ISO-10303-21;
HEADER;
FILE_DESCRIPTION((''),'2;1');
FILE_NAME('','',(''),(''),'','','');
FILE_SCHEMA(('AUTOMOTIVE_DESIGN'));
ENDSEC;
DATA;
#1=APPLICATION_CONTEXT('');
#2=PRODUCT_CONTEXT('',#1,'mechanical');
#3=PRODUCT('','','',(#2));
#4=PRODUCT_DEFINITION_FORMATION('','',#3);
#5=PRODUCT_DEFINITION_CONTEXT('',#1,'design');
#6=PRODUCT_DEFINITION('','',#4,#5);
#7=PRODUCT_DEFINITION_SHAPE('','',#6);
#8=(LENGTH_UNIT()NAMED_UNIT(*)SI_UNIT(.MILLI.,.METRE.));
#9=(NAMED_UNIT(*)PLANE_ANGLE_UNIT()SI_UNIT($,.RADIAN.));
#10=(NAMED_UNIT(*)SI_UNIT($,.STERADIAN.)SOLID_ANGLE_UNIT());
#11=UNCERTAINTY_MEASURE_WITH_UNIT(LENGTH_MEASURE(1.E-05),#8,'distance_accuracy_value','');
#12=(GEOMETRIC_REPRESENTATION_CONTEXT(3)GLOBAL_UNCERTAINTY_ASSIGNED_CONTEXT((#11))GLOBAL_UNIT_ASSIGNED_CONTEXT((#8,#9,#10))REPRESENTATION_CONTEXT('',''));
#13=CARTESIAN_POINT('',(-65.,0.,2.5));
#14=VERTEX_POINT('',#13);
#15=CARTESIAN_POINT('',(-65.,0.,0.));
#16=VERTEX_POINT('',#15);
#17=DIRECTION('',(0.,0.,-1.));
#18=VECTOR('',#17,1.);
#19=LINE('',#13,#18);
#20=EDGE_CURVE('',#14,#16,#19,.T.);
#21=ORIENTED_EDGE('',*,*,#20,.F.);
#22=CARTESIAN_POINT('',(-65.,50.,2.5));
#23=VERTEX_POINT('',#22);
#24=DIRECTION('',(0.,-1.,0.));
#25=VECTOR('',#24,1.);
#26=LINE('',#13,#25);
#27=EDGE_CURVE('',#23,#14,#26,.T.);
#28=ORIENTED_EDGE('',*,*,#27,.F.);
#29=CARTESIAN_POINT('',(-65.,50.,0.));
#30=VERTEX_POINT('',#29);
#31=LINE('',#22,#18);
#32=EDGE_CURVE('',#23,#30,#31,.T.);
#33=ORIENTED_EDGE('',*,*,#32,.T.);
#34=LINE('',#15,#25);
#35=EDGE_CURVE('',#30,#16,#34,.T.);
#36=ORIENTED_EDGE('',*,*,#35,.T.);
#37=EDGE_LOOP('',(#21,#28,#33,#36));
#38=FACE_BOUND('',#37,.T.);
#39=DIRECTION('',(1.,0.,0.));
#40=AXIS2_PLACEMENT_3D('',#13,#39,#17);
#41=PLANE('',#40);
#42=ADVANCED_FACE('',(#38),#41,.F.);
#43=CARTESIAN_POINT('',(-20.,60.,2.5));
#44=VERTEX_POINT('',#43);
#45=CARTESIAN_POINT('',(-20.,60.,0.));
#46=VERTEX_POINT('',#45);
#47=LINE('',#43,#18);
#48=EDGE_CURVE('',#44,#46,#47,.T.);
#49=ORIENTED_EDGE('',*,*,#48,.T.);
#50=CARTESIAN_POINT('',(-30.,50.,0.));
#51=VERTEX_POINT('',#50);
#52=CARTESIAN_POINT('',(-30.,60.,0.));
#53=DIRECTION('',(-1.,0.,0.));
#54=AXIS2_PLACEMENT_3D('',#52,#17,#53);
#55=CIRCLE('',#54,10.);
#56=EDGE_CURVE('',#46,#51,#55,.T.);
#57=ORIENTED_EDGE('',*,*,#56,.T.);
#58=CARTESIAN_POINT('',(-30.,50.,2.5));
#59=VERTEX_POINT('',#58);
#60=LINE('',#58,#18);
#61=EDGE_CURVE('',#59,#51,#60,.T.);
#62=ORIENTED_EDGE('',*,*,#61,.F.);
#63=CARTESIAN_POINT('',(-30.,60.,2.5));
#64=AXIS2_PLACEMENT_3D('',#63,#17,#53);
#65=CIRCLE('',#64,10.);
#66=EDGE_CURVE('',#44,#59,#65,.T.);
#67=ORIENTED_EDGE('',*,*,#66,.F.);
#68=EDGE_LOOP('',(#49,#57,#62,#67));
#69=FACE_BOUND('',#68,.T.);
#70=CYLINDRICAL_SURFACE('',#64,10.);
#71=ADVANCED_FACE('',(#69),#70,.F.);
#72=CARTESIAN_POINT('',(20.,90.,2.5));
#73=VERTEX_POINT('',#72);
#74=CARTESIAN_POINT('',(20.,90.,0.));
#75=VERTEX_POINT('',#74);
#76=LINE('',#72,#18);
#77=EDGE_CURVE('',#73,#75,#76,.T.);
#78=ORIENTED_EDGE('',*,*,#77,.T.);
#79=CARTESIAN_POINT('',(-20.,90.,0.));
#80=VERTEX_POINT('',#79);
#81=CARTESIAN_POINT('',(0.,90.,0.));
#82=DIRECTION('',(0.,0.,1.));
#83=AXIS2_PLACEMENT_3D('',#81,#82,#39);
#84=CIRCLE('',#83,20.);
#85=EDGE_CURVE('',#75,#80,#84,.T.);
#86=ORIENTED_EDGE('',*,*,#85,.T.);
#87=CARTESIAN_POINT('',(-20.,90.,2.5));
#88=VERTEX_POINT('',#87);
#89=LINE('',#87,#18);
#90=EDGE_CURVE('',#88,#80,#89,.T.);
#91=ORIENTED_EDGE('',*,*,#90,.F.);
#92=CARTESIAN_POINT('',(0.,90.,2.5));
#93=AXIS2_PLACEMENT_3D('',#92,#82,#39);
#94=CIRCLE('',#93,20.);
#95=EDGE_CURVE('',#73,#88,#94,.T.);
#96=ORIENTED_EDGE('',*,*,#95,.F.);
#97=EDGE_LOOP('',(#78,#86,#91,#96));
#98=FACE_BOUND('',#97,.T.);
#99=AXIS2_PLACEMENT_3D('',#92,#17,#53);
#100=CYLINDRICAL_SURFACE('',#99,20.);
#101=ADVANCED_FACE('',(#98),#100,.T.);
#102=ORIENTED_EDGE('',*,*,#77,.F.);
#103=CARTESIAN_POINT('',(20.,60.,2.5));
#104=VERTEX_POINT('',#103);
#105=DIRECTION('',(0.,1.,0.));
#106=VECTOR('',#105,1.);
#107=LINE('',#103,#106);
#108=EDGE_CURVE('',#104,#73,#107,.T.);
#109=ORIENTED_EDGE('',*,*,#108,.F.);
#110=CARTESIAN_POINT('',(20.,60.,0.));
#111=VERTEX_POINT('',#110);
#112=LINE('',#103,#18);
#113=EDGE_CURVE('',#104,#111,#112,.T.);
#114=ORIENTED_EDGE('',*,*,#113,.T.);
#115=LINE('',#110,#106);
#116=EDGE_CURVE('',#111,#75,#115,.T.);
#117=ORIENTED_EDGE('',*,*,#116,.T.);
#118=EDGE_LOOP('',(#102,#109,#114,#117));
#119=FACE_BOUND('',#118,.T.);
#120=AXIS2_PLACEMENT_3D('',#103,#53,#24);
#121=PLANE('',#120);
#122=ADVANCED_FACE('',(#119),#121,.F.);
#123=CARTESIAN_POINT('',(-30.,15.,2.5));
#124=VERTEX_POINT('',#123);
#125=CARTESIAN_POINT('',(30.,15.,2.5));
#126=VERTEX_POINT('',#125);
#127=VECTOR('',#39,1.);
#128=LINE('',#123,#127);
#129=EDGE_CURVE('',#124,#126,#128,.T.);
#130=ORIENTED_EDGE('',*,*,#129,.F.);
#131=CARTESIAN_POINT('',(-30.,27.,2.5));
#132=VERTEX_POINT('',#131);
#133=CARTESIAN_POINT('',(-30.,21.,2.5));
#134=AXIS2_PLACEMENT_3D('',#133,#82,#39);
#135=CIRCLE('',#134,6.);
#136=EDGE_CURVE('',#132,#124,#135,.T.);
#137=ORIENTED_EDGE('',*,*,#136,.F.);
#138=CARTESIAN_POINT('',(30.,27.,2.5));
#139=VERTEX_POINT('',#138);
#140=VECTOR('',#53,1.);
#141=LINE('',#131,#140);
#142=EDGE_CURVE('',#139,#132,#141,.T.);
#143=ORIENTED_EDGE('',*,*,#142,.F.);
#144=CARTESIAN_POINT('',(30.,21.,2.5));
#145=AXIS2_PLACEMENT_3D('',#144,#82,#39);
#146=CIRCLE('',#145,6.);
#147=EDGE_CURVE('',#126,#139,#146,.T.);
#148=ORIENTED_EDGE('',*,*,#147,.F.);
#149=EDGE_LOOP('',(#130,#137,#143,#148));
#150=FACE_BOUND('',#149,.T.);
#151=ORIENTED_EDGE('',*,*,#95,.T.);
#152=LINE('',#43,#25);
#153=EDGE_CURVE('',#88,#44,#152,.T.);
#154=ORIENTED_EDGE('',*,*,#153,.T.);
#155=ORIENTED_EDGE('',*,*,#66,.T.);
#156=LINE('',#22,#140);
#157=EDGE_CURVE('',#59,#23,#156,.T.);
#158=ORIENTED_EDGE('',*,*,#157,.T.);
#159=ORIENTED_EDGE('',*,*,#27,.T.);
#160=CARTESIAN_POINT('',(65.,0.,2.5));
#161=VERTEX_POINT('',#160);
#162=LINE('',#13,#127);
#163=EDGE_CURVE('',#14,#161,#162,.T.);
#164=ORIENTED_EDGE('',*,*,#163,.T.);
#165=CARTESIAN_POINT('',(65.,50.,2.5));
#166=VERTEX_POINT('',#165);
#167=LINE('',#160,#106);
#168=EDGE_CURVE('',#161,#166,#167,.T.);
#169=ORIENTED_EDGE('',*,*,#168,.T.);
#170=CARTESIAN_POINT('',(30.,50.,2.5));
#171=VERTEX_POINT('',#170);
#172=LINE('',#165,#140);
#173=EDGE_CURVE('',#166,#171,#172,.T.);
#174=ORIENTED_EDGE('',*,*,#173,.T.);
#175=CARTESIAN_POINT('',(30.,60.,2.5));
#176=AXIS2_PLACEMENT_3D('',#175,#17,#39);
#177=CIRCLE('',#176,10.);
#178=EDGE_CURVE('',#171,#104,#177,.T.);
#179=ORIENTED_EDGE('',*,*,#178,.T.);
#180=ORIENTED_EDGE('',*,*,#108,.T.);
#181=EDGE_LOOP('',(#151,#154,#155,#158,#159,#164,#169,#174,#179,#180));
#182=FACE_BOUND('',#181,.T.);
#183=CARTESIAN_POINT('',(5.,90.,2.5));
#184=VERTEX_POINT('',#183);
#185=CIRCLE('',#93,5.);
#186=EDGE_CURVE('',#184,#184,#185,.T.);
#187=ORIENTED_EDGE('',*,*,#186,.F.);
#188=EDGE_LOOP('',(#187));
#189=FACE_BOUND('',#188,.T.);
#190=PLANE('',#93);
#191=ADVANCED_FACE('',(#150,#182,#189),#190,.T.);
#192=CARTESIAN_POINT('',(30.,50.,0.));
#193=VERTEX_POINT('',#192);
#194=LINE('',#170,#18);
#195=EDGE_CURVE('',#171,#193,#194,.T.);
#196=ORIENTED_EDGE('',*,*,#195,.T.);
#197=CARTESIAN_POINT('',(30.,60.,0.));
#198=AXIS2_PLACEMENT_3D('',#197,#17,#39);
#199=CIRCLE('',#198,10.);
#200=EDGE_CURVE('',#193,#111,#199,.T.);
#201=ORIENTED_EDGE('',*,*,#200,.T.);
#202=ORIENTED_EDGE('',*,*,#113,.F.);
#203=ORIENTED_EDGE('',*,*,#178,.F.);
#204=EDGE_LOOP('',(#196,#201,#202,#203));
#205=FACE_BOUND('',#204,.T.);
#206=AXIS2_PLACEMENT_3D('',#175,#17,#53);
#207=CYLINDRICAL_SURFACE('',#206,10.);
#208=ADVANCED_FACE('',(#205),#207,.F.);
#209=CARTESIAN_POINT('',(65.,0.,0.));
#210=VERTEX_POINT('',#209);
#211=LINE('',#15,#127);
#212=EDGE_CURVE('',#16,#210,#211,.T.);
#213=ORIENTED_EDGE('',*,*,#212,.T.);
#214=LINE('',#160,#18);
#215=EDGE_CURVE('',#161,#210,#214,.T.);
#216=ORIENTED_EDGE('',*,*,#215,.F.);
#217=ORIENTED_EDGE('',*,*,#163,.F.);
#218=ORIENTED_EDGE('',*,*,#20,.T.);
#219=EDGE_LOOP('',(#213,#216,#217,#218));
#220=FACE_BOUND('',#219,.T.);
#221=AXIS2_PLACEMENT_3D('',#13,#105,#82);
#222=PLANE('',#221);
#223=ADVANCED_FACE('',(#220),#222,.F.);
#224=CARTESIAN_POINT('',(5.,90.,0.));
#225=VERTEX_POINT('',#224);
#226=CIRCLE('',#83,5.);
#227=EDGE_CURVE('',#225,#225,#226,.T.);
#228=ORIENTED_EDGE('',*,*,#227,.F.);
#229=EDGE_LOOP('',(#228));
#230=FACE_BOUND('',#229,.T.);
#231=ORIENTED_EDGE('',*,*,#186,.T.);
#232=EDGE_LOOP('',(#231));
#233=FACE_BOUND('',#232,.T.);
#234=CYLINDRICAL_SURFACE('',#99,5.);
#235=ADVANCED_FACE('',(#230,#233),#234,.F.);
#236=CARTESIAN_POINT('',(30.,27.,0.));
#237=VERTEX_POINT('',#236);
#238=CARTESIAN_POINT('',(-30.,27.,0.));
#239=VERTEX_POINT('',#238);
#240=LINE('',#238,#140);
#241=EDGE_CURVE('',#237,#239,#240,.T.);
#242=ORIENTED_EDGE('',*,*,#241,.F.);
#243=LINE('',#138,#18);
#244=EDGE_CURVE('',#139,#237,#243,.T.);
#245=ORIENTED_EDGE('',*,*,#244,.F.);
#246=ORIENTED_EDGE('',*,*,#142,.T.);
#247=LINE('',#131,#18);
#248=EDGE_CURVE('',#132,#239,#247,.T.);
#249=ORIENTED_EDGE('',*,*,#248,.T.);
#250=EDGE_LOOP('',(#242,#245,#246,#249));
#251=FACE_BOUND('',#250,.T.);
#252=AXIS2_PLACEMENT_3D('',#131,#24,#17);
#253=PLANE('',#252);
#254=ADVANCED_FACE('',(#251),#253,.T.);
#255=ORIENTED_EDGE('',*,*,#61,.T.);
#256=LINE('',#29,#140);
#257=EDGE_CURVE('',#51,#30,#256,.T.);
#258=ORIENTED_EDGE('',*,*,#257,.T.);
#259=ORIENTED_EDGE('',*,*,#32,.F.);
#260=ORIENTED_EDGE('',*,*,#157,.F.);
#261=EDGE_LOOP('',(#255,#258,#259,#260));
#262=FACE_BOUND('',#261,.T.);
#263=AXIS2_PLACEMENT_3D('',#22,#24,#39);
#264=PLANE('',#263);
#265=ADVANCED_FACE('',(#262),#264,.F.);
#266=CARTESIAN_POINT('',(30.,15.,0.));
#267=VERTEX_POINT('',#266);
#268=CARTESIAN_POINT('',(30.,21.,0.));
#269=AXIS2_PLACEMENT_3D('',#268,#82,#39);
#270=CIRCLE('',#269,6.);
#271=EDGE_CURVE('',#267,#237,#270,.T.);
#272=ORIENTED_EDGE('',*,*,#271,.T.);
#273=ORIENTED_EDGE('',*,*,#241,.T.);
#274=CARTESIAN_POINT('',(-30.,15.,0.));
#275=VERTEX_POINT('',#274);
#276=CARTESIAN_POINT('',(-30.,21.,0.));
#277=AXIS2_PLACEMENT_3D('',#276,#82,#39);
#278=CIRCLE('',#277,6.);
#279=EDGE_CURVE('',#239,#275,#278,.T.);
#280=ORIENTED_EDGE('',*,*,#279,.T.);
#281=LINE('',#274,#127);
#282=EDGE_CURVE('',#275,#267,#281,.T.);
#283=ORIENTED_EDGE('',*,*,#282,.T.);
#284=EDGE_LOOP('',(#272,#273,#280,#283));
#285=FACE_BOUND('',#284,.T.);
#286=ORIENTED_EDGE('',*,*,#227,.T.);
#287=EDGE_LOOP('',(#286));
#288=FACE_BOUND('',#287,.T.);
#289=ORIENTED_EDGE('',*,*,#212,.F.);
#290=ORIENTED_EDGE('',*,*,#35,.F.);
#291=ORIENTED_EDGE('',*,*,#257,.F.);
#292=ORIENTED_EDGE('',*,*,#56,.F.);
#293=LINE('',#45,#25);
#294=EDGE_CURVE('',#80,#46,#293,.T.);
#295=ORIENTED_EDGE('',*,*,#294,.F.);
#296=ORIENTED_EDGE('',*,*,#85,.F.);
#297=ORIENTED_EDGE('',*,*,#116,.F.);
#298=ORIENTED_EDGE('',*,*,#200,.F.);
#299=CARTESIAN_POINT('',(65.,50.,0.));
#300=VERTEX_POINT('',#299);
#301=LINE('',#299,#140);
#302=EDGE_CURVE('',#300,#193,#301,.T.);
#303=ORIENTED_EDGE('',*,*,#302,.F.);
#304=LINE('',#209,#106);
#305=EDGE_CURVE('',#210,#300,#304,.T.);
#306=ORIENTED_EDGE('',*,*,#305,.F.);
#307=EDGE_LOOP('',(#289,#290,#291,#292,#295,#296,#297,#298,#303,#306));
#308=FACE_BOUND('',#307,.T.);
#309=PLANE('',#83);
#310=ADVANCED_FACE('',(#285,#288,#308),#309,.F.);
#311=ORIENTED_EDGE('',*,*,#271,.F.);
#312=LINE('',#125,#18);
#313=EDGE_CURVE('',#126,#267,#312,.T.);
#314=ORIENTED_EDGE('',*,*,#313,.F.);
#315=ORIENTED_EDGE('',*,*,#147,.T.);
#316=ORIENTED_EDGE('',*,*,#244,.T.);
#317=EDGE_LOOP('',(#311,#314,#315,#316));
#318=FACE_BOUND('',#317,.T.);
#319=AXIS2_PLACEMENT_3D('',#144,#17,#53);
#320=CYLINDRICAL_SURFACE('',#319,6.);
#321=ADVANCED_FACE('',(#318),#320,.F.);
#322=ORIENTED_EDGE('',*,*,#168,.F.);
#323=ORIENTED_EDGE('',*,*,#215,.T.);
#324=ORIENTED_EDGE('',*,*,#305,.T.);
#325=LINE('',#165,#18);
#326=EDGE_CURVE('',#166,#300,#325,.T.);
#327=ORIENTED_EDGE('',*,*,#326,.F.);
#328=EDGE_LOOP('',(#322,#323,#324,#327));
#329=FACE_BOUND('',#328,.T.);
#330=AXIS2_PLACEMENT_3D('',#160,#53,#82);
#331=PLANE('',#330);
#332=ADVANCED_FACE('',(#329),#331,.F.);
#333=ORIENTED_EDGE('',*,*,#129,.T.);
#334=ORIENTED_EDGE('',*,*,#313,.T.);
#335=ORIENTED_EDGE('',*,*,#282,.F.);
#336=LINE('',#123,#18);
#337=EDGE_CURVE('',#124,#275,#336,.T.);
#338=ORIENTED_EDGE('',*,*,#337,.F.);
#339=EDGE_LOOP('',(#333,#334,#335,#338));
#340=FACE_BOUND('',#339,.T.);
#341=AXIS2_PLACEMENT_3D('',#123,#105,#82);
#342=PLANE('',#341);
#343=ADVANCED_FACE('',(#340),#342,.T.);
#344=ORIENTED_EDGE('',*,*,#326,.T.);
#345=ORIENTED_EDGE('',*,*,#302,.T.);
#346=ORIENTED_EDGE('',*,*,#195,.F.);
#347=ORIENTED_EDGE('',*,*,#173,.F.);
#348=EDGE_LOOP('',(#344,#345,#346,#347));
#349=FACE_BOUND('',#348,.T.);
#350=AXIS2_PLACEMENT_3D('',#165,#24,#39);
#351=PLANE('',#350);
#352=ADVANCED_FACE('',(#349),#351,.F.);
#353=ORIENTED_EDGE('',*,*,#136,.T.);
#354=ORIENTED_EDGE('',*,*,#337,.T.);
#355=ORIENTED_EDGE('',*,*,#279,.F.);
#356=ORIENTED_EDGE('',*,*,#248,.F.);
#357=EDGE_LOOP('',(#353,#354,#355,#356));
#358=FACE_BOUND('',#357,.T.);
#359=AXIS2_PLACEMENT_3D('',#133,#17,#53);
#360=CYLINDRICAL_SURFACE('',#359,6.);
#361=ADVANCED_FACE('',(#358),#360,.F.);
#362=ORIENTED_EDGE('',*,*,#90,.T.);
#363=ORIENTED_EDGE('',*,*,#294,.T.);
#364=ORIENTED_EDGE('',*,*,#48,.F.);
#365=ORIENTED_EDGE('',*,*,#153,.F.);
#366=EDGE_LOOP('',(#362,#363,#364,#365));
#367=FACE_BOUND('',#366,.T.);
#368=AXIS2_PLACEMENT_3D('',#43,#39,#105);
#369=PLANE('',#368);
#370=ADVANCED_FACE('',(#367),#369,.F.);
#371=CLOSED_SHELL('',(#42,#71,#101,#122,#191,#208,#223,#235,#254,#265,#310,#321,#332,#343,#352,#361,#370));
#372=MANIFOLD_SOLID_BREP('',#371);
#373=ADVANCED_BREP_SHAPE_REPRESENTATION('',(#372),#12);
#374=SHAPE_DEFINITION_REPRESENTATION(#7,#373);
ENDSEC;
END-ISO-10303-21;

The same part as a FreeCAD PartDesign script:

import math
import FreeCAD as App
import Part
import Sketcher
Q = App.Units.Quantity

doc = App.newDocument("Part")
body = doc.addObject("PartDesign::Body", "Body")

# Sketch on XY plane
sketch1 = body.newObject("Sketcher::SketchObject", "Sketch")
sketch1.AttachmentSupport = (doc.getObject("XY_Plane"), [""])
sketch1.MapMode = "FlatFace"
sketch1.addGeometry([
    Part.LineSegment(App.Vector(-65, 0, 0), App.Vector(65, 0, 0)),  # 0
    Part.LineSegment(App.Vector(65, 0, 0), App.Vector(65, 50, 0)),  # 1
    Part.LineSegment(App.Vector(65, 50, 0), App.Vector(30, 50, 0)),  # 2
    Part.ArcOfCircle(Part.Circle(App.Vector(30, 60, 0), App.Vector(0, 0, 1), 10), math.radians(180), math.radians(270)),  # 3
    Part.LineSegment(App.Vector(20, 60, 0), App.Vector(20, 90, 0)),  # 4
    Part.ArcOfCircle(Part.Circle(App.Vector(0, 90, 0), App.Vector(0, 0, 1), 20), math.radians(0), math.radians(180)),  # 5
    Part.LineSegment(App.Vector(-20, 90, 0), App.Vector(-20, 60, 0)),  # 6
    Part.ArcOfCircle(Part.Circle(App.Vector(-30, 60, 0), App.Vector(0, 0, 1), 10), math.radians(-90), math.radians(0)),  # 7
    Part.LineSegment(App.Vector(-30, 50, 0), App.Vector(-65, 50, 0)),  # 8
    Part.LineSegment(App.Vector(-65, 50, 0), App.Vector(-65, 0, 0)),  # 9
    Part.ArcOfCircle(Part.Circle(App.Vector(-30, 21, 0), App.Vector(0, 0, 1), 6), math.radians(90), math.radians(270)),  # 10
    Part.LineSegment(App.Vector(-30, 27, 0), App.Vector(30, 27, 0)),  # 11
    Part.ArcOfCircle(Part.Circle(App.Vector(30, 21, 0), App.Vector(0, 0, 1), 6), math.radians(-90), math.radians(90)),  # 12
    Part.LineSegment(App.Vector(30, 15, 0), App.Vector(-30, 15, 0)),  # 13
    Part.Circle(App.Vector(0, 90, 0), App.Vector(0, 0, 1), 5),  # 14
], False)
sketch1.addConstraint([
    Sketcher.Constraint("Coincident", 0, 2, 1, 1),
    Sketcher.Constraint("Coincident", 1, 2, 2, 1),
    Sketcher.Constraint("Tangent", 2, 2, 3, 2),
    Sketcher.Constraint("Tangent", 3, 1, 4, 1),
    Sketcher.Constraint("Tangent", 4, 2, 5, 1),
    Sketcher.Constraint("Tangent", 5, 2, 6, 1),
    Sketcher.Constraint("Tangent", 6, 2, 7, 2),
    Sketcher.Constraint("Tangent", 7, 1, 8, 1),
    Sketcher.Constraint("Coincident", 8, 2, 9, 1),
    Sketcher.Constraint("Coincident", 9, 2, 0, 1),
    Sketcher.Constraint("Tangent", 10, 1, 11, 1),
    Sketcher.Constraint("Tangent", 11, 2, 12, 2),
    Sketcher.Constraint("Tangent", 12, 1, 13, 1),
    Sketcher.Constraint("Tangent", 13, 2, 10, 2),
    Sketcher.Constraint("Horizontal", 0),
    Sketcher.Constraint("Vertical", 1),
    Sketcher.Constraint("Horizontal", 2),
    Sketcher.Constraint("Vertical", 4),
    Sketcher.Constraint("Vertical", 6),
    Sketcher.Constraint("Horizontal", 8),
    Sketcher.Constraint("Vertical", 9),
    Sketcher.Constraint("Horizontal", 11),
    Sketcher.Constraint("Horizontal", 13),
    Sketcher.Constraint("Coincident", 14, 3, 5, 3),
    Sketcher.Constraint("Equal", 3, 7),
    Sketcher.Constraint("Symmetric", 0, 2, 9, 2, -1, 1),
    Sketcher.Constraint("Symmetric", 3, 3, 7, 3, -2),
    Sketcher.Constraint("Vertical", 7, 3, 10, 3),
    Sketcher.Constraint("Vertical", 3, 3, 12, 3),
    Sketcher.Constraint("Diameter", 14, Q("10 mm")),
    Sketcher.Constraint("Radius", 3, Q("10 mm")),
    Sketcher.Constraint("Radius", 5, Q("20 mm")),
    Sketcher.Constraint("Radius", 10, Q("6 mm")),
    Sketcher.Constraint("DistanceX", 0, 1, 0, 2, Q("130 mm")),
    Sketcher.Constraint("DistanceY", 1, 1, 1, 2, Q("50 mm")),
    Sketcher.Constraint("DistanceY", 4, 1, 4, 2, Q("30 mm")),
    Sketcher.Constraint("DistanceY", -1, 1, 10, 3, Q("21 mm")),
])
pad1 = body.newObject("PartDesign::Pad", "Pad")
pad1.Profile = sketch1
pad1.Length = 2.5

doc.recompute()
